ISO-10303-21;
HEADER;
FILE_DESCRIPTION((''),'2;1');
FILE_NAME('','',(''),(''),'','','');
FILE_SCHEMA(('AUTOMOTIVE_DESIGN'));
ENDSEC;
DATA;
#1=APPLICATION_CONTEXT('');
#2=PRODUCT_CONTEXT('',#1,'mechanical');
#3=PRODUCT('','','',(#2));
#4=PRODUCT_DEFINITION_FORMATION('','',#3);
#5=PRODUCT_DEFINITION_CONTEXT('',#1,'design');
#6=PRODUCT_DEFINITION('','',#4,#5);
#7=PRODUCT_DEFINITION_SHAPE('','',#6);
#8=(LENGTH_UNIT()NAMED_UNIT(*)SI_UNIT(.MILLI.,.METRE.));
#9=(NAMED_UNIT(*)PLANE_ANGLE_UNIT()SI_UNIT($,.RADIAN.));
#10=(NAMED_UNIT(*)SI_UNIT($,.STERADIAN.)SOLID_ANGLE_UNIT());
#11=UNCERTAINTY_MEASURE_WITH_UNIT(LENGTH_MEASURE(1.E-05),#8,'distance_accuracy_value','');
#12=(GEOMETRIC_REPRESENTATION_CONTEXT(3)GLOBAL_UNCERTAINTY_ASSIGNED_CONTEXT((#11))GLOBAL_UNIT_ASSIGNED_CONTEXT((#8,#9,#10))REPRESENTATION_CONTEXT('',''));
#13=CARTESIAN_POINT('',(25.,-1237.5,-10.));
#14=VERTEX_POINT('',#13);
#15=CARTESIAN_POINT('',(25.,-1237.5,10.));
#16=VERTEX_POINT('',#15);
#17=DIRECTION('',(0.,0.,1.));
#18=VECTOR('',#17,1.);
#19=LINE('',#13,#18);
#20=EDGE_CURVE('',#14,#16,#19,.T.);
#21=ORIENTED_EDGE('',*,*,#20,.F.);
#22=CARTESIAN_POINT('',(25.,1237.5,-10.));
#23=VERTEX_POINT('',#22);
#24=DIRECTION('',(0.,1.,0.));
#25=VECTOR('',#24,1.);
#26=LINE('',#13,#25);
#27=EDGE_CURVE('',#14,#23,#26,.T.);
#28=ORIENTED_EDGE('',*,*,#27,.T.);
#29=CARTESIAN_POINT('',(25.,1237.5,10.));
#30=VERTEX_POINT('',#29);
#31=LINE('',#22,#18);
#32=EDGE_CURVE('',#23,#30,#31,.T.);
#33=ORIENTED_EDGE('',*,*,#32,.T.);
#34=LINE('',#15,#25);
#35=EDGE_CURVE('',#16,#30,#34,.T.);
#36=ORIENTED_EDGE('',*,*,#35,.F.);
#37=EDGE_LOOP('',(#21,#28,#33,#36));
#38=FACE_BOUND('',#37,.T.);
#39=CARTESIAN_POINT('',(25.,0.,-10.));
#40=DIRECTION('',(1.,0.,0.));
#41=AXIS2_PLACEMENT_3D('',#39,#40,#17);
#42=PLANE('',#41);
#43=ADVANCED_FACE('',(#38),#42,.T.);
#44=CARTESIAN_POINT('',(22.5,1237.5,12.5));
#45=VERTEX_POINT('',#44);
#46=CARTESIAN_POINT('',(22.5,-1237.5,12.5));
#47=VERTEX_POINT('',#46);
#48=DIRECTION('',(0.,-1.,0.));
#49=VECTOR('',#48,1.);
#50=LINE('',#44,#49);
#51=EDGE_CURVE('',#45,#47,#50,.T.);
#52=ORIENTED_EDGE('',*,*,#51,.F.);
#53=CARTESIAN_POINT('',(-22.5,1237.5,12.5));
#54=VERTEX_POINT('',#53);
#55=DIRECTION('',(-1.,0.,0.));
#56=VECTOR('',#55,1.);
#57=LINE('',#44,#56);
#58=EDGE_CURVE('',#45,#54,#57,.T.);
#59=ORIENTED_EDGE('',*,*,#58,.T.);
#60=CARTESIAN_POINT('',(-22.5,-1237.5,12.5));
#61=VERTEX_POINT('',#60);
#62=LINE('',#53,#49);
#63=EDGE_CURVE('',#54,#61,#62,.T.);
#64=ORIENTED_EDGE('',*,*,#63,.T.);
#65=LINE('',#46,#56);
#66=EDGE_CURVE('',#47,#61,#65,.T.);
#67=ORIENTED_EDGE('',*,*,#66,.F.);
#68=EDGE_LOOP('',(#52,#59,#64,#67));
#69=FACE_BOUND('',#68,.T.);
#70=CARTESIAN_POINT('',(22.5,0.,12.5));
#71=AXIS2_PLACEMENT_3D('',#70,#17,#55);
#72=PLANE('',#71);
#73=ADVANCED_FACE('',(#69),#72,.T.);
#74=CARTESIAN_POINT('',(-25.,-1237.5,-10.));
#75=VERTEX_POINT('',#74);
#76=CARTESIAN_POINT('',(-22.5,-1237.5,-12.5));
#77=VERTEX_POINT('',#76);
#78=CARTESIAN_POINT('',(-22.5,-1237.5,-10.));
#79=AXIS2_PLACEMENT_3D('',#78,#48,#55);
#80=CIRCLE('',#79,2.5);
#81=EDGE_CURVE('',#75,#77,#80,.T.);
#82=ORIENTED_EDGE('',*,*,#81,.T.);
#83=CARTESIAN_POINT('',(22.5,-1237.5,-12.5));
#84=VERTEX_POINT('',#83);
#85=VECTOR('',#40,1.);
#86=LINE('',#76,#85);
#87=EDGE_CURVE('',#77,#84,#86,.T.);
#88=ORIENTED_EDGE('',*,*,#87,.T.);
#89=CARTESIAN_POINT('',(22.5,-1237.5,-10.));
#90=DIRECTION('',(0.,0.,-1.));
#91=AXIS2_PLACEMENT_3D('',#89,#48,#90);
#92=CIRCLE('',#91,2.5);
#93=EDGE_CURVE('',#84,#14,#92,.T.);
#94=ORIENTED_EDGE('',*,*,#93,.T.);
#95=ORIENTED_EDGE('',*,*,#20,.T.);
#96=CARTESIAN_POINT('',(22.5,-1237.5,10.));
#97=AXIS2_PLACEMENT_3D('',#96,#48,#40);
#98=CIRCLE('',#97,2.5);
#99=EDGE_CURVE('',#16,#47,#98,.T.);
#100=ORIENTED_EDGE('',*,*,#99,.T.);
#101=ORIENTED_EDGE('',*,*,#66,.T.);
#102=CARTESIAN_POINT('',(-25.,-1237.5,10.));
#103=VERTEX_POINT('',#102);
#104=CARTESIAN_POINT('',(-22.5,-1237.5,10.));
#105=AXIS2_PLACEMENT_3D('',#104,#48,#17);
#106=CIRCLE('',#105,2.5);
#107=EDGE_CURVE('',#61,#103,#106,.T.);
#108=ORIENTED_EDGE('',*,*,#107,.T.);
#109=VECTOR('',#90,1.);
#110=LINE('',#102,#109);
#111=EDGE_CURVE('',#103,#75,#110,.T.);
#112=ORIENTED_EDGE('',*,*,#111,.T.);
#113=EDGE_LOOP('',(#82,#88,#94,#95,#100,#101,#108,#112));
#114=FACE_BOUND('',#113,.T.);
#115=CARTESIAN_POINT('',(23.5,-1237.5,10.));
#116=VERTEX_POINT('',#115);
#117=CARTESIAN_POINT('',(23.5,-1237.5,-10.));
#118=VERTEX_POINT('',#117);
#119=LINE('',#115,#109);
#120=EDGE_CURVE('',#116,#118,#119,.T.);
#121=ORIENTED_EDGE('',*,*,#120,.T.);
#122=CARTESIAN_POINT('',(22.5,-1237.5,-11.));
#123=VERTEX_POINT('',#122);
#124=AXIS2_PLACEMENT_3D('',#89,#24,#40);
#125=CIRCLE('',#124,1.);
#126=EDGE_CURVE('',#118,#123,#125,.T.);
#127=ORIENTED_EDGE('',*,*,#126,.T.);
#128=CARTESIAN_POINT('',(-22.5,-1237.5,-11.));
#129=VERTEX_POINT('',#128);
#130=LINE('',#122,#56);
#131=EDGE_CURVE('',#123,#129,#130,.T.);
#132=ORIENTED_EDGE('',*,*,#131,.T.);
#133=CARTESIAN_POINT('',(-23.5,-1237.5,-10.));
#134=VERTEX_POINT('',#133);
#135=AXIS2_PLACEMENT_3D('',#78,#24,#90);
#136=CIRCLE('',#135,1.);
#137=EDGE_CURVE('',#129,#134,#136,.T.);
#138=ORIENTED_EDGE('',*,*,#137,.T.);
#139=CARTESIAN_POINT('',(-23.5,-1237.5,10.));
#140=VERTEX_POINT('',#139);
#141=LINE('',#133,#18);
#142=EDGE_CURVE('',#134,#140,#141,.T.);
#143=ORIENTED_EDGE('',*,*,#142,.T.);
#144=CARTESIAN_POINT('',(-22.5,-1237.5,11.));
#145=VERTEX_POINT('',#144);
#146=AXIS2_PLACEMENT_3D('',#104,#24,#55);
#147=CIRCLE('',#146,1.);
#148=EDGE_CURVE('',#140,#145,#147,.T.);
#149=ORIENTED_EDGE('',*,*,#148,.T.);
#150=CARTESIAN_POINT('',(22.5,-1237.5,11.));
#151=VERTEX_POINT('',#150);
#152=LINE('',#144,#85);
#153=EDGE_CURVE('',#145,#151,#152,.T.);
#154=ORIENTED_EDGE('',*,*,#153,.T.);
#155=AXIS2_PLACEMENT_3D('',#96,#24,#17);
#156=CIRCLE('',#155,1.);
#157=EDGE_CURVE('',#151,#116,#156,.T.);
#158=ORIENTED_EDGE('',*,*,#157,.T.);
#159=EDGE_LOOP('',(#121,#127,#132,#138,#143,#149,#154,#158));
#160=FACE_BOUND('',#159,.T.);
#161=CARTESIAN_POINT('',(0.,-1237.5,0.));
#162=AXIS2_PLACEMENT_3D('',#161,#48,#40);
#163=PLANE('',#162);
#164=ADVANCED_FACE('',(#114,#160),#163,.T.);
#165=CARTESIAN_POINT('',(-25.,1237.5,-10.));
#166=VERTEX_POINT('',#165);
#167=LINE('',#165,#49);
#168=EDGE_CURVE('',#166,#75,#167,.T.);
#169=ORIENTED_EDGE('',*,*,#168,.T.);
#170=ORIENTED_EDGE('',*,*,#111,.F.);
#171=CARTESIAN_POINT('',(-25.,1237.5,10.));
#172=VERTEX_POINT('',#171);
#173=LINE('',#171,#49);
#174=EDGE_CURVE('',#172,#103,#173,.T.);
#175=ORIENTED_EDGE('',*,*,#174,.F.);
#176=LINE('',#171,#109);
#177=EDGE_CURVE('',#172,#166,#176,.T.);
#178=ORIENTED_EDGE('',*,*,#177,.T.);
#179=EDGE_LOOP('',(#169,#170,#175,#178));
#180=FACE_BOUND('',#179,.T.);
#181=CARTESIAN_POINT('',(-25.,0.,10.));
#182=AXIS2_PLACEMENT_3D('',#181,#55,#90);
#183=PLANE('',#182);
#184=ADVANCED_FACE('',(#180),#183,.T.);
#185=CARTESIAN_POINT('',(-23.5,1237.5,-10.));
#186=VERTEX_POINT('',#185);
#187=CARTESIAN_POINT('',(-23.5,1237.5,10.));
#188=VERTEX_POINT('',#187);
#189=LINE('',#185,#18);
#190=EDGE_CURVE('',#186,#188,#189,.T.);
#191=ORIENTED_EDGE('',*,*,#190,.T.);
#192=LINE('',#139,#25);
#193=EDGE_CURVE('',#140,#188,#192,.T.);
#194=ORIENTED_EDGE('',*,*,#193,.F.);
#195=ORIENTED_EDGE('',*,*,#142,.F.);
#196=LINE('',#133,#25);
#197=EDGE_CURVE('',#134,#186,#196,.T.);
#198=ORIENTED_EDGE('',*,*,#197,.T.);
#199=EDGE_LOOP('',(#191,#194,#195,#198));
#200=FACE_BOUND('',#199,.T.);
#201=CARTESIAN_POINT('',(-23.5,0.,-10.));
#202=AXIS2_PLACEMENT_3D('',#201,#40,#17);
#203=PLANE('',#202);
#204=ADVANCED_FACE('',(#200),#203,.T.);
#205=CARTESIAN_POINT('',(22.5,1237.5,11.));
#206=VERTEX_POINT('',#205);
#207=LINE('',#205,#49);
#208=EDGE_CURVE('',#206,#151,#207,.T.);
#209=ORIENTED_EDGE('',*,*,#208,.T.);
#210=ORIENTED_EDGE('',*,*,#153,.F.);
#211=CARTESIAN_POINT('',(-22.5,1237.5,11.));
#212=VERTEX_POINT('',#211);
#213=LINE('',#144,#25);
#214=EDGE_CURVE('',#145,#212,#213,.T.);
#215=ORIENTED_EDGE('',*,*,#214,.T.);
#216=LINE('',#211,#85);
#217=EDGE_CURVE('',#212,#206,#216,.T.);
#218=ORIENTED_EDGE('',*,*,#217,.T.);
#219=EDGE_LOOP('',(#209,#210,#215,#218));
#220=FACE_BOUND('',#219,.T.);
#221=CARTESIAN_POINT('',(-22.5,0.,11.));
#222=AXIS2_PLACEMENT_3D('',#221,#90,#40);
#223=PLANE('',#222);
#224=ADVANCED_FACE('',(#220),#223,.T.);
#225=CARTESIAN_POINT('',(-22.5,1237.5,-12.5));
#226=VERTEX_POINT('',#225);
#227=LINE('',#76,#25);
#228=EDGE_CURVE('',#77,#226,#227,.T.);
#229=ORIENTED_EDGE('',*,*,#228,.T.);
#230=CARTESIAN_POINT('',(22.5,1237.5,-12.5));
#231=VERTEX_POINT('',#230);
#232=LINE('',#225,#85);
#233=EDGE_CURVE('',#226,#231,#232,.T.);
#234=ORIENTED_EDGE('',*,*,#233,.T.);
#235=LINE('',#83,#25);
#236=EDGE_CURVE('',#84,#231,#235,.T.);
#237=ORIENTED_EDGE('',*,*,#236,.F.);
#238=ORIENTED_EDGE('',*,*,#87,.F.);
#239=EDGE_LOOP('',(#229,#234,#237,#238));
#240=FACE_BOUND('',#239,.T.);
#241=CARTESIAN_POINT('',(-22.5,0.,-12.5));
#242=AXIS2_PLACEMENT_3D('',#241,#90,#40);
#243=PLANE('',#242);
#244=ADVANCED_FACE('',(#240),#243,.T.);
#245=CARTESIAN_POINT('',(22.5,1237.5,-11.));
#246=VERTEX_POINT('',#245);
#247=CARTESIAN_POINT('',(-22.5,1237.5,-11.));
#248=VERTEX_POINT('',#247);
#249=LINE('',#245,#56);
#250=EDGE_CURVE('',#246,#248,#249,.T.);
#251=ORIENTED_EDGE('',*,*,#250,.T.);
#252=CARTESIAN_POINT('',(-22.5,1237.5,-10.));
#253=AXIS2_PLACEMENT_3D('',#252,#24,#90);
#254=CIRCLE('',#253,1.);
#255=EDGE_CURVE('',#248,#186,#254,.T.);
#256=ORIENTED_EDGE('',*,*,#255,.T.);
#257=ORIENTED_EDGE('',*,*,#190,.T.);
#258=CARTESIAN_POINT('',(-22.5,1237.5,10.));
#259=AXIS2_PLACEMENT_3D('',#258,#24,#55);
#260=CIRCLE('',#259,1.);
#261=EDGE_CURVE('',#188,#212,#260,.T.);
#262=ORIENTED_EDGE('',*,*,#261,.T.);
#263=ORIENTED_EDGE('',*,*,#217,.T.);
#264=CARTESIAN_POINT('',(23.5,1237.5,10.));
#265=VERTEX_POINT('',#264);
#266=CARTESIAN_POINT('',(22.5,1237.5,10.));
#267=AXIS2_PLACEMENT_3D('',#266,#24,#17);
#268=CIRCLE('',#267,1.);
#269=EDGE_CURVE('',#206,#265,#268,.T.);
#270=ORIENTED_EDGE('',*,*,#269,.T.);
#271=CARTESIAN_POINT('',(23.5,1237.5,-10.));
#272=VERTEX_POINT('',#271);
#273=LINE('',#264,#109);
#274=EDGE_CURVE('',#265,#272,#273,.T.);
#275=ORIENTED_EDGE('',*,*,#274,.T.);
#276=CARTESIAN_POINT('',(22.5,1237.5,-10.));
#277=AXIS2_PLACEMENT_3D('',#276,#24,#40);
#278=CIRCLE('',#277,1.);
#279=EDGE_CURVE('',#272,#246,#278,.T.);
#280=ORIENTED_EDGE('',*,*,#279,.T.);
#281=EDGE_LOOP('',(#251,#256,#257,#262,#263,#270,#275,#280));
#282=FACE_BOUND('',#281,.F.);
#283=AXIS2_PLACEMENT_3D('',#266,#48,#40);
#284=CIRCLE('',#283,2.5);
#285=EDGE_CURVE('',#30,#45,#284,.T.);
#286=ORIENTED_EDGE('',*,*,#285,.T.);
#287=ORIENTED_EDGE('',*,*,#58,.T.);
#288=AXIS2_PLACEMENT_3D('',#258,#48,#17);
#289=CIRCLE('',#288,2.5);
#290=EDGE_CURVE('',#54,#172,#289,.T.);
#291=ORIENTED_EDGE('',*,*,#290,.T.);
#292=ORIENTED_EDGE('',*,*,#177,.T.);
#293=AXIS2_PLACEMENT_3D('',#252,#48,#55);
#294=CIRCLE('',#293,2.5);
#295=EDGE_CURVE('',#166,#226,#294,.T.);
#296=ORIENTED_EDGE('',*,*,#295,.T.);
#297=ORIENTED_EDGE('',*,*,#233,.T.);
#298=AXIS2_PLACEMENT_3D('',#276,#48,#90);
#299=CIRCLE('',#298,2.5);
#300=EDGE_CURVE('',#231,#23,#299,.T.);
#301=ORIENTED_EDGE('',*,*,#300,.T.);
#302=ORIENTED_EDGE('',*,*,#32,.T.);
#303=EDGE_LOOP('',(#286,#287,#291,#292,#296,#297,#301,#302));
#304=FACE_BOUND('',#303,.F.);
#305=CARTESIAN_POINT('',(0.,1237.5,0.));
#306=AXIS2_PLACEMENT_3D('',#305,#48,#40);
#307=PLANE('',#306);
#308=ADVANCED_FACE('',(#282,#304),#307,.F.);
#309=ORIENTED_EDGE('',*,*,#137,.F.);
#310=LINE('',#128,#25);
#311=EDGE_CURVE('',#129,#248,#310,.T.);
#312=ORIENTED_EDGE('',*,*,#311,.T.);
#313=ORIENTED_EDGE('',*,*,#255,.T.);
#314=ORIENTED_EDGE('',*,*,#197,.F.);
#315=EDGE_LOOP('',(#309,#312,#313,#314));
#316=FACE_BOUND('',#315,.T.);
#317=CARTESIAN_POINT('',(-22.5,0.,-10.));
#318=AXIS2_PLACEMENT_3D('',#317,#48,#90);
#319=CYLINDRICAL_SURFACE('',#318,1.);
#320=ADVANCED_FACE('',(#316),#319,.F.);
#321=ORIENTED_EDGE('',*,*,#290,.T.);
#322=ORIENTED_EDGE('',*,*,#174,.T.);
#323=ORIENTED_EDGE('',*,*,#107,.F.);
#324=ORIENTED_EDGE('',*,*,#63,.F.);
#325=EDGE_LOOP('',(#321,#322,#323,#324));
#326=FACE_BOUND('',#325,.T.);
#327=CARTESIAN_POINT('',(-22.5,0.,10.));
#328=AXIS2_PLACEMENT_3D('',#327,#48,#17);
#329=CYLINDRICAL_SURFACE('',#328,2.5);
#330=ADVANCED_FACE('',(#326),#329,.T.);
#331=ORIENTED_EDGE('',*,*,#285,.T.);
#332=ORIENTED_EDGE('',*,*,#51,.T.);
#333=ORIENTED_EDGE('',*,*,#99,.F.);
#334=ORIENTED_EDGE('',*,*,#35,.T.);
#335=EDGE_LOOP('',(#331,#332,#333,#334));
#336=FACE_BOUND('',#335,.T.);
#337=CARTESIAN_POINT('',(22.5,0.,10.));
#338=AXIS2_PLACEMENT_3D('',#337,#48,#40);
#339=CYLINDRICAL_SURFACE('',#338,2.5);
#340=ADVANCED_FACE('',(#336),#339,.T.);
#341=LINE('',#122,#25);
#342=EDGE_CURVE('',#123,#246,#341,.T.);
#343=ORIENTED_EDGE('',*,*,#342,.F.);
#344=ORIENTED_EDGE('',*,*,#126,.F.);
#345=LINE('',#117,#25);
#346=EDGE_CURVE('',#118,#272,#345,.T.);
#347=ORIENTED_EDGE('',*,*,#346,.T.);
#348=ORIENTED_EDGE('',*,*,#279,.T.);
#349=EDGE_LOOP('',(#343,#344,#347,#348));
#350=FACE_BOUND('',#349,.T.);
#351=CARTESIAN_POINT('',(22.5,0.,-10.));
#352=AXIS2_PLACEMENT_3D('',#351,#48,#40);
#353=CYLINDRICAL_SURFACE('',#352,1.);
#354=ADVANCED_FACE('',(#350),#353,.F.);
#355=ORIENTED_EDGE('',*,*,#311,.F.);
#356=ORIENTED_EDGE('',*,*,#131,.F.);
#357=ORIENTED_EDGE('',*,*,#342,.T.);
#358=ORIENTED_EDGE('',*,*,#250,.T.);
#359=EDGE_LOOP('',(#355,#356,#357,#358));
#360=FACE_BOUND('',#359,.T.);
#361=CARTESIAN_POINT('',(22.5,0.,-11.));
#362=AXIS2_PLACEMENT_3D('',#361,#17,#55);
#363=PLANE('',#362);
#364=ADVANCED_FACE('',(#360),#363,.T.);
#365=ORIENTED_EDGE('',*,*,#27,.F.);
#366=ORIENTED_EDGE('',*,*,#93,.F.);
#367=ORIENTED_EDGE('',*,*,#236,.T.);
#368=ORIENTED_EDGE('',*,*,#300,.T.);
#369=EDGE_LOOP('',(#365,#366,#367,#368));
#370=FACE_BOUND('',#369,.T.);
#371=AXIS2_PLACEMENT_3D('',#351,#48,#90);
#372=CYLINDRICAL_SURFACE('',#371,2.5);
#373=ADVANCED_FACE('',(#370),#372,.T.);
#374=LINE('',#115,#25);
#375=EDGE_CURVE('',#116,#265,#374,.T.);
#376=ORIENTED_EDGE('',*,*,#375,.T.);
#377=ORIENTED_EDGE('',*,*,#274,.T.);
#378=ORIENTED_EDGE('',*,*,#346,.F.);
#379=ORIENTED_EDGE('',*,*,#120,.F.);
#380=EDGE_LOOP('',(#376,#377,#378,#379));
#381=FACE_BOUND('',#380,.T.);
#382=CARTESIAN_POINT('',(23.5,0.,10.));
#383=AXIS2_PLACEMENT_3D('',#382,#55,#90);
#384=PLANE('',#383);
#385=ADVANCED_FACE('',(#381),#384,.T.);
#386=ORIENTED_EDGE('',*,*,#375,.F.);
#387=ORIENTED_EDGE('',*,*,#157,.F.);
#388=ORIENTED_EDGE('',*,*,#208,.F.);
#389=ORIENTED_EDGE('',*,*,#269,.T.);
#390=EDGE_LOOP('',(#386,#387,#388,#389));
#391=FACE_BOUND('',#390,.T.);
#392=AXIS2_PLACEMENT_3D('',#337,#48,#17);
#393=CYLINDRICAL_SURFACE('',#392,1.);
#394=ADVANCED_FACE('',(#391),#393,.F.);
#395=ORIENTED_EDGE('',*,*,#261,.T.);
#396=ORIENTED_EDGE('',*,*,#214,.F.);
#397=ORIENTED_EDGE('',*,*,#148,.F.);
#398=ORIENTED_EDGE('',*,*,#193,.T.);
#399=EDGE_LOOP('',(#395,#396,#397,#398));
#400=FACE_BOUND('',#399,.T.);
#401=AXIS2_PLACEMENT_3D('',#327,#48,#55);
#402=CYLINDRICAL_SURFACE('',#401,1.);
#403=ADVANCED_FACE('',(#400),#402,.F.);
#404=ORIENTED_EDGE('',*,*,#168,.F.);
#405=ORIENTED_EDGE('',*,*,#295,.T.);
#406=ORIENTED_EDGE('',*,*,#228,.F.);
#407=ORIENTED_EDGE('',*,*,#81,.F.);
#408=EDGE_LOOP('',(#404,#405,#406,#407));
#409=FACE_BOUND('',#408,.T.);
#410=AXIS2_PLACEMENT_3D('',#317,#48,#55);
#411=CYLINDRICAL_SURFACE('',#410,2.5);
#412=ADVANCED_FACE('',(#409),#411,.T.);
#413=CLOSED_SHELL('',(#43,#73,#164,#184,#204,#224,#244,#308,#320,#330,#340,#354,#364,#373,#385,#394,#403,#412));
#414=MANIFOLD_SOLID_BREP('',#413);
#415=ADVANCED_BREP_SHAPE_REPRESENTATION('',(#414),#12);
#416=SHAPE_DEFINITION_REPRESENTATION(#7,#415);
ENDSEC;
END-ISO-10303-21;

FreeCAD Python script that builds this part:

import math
import FreeCAD as App
import Part
import Sketcher
from FreeCAD import Vector

doc = App.newDocument("Part")
body = doc.addObject("PartDesign::Body", "Body")

# Sketch on XZ plane
sketch1 = body.newObject("Sketcher::SketchObject", "Sketch")
sketch1.AttachmentSupport = (doc.getObject("XZ_Plane"), [""])
sketch1.MapMode = "FlatFace"
sketch1.addGeometry([
    Part.ArcOfCircle(Part.Circle(Vector(22.5, 10, 0), Vector(0, 0, 1), 2.5), math.radians(0), math.radians(90)),  # 0
    Part.LineSegment(Vector(22.5, 12.5, 0), Vector(-22.5, 12.5, 0)),  # 1
    Part.ArcOfCircle(Part.Circle(Vector(-22.5, 10, 0), Vector(0, 0, 1), 2.5), math.radians(90), math.radians(180)),  # 2
    Part.LineSegment(Vector(-25, 10, 0), Vector(-25, -10, 0)),  # 3
    Part.ArcOfCircle(Part.Circle(Vector(-22.5, -10, 0), Vector(0, 0, 1), 2.5), math.radians(180), math.radians(270)),  # 4
    Part.LineSegment(Vector(-22.5, -12.5, 0), Vector(22.5, -12.5, 0)),  # 5
    Part.ArcOfCircle(Part.Circle(Vector(22.5, -10, 0), Vector(0, 0, 1), 2.5), math.radians(-90), math.radians(0)),  # 6
    Part.LineSegment(Vector(25, -10, 0), Vector(25, 10, 0)),  # 7
    Part.LineSegment(Vector(-22.5, 11, 0), Vector(22.5, 11, 0)),  # 8
    Part.ArcOfCircle(Part.Circle(Vector(22.5, 10, 0), Vector(0, 0, 1), 1), math.radians(0), math.radians(90)),  # 9
    Part.LineSegment(Vector(23.5, 10, 0), Vector(23.5, -10, 0)),  # 10
    Part.ArcOfCircle(Part.Circle(Vector(22.5, -10, 0), Vector(0, 0, 1), 1), math.radians(-90), math.radians(0)),  # 11
    Part.LineSegment(Vector(22.5, -11, 0), Vector(-22.5, -11, 0)),  # 12
    Part.ArcOfCircle(Part.Circle(Vector(-22.5, -10, 0), Vector(0, 0, 1), 1), math.radians(180), math.radians(270)),  # 13
    Part.LineSegment(Vector(-23.5, -10, 0), Vector(-23.5, 10, 0)),  # 14
    Part.ArcOfCircle(Part.Circle(Vector(-22.5, 10, 0), Vector(0, 0, 1), 1), math.radians(90), math.radians(180)),  # 15
], False)
sketch1.addConstraint([
    Sketcher.Constraint("Tangent", 0, 2, 1, 1),
    Sketcher.Constraint("Tangent", 1, 2, 2, 1),
    Sketcher.Constraint("Tangent", 2, 2, 3, 1),
    Sketcher.Constraint("Tangent", 3, 2, 4, 1),
    Sketcher.Constraint("Tangent", 4, 2, 5, 1),
    Sketcher.Constraint("Tangent", 5, 2, 6, 1),
    Sketcher.Constraint("Tangent", 6, 2, 7, 1),
    Sketcher.Constraint("Tangent", 7, 2, 0, 1),
    Sketcher.Constraint("Tangent", 8, 2, 9, 2),
    Sketcher.Constraint("Tangent", 9, 1, 10, 1),
    Sketcher.Constraint("Tangent", 10, 2, 11, 2),
    Sketcher.Constraint("Tangent", 11, 1, 12, 1),
    Sketcher.Constraint("Tangent", 12, 2, 13, 2),
    Sketcher.Constraint("Tangent", 13, 1, 14, 1),
    Sketcher.Constraint("Tangent", 14, 2, 15, 2),
    Sketcher.Constraint("Tangent", 15, 1, 8, 1),
    Sketcher.Constraint("Horizontal", 1),
    Sketcher.Constraint("Vertical", 3),
    Sketcher.Constraint("Horizontal", 5),
    Sketcher.Constraint("Vertical", 7),
    Sketcher.Constraint("Horizontal", 8),
    Sketcher.Constraint("Vertical", 10),
    Sketcher.Constraint("Horizontal", 12),
    Sketcher.Constraint("Vertical", 14),
    Sketcher.Constraint("Coincident", 9, 3, 0, 3),
    Sketcher.Constraint("Coincident", 11, 3, 6, 3),
    Sketcher.Constraint("Coincident", 13, 3, 4, 3),
    Sketcher.Constraint("Equal", 0, 2),
    Sketcher.Constraint("Equal", 2, 4),
    Sketcher.Constraint("Equal", 4, 6),
    Sketcher.Constraint("Equal", 13, 15),
    Sketcher.Constraint("Symmetric", 0, 3, 4, 3, -1, 1),
    Sketcher.Constraint("Radius", 9, 1.0),
    Sketcher.Constraint("Radius", 0, 2.5),
    Sketcher.Constraint("DistanceX", 1, 2, 1, 1, 45.0),
    Sketcher.Constraint("DistanceY", 3, 2, 3, 1, 20.0),
])
pad1 = body.newObject("PartDesign::Pad", "Pad")
pad1.Profile = sketch1
pad1.Length = 2475
pad1.Midplane = True

doc.recompute()
